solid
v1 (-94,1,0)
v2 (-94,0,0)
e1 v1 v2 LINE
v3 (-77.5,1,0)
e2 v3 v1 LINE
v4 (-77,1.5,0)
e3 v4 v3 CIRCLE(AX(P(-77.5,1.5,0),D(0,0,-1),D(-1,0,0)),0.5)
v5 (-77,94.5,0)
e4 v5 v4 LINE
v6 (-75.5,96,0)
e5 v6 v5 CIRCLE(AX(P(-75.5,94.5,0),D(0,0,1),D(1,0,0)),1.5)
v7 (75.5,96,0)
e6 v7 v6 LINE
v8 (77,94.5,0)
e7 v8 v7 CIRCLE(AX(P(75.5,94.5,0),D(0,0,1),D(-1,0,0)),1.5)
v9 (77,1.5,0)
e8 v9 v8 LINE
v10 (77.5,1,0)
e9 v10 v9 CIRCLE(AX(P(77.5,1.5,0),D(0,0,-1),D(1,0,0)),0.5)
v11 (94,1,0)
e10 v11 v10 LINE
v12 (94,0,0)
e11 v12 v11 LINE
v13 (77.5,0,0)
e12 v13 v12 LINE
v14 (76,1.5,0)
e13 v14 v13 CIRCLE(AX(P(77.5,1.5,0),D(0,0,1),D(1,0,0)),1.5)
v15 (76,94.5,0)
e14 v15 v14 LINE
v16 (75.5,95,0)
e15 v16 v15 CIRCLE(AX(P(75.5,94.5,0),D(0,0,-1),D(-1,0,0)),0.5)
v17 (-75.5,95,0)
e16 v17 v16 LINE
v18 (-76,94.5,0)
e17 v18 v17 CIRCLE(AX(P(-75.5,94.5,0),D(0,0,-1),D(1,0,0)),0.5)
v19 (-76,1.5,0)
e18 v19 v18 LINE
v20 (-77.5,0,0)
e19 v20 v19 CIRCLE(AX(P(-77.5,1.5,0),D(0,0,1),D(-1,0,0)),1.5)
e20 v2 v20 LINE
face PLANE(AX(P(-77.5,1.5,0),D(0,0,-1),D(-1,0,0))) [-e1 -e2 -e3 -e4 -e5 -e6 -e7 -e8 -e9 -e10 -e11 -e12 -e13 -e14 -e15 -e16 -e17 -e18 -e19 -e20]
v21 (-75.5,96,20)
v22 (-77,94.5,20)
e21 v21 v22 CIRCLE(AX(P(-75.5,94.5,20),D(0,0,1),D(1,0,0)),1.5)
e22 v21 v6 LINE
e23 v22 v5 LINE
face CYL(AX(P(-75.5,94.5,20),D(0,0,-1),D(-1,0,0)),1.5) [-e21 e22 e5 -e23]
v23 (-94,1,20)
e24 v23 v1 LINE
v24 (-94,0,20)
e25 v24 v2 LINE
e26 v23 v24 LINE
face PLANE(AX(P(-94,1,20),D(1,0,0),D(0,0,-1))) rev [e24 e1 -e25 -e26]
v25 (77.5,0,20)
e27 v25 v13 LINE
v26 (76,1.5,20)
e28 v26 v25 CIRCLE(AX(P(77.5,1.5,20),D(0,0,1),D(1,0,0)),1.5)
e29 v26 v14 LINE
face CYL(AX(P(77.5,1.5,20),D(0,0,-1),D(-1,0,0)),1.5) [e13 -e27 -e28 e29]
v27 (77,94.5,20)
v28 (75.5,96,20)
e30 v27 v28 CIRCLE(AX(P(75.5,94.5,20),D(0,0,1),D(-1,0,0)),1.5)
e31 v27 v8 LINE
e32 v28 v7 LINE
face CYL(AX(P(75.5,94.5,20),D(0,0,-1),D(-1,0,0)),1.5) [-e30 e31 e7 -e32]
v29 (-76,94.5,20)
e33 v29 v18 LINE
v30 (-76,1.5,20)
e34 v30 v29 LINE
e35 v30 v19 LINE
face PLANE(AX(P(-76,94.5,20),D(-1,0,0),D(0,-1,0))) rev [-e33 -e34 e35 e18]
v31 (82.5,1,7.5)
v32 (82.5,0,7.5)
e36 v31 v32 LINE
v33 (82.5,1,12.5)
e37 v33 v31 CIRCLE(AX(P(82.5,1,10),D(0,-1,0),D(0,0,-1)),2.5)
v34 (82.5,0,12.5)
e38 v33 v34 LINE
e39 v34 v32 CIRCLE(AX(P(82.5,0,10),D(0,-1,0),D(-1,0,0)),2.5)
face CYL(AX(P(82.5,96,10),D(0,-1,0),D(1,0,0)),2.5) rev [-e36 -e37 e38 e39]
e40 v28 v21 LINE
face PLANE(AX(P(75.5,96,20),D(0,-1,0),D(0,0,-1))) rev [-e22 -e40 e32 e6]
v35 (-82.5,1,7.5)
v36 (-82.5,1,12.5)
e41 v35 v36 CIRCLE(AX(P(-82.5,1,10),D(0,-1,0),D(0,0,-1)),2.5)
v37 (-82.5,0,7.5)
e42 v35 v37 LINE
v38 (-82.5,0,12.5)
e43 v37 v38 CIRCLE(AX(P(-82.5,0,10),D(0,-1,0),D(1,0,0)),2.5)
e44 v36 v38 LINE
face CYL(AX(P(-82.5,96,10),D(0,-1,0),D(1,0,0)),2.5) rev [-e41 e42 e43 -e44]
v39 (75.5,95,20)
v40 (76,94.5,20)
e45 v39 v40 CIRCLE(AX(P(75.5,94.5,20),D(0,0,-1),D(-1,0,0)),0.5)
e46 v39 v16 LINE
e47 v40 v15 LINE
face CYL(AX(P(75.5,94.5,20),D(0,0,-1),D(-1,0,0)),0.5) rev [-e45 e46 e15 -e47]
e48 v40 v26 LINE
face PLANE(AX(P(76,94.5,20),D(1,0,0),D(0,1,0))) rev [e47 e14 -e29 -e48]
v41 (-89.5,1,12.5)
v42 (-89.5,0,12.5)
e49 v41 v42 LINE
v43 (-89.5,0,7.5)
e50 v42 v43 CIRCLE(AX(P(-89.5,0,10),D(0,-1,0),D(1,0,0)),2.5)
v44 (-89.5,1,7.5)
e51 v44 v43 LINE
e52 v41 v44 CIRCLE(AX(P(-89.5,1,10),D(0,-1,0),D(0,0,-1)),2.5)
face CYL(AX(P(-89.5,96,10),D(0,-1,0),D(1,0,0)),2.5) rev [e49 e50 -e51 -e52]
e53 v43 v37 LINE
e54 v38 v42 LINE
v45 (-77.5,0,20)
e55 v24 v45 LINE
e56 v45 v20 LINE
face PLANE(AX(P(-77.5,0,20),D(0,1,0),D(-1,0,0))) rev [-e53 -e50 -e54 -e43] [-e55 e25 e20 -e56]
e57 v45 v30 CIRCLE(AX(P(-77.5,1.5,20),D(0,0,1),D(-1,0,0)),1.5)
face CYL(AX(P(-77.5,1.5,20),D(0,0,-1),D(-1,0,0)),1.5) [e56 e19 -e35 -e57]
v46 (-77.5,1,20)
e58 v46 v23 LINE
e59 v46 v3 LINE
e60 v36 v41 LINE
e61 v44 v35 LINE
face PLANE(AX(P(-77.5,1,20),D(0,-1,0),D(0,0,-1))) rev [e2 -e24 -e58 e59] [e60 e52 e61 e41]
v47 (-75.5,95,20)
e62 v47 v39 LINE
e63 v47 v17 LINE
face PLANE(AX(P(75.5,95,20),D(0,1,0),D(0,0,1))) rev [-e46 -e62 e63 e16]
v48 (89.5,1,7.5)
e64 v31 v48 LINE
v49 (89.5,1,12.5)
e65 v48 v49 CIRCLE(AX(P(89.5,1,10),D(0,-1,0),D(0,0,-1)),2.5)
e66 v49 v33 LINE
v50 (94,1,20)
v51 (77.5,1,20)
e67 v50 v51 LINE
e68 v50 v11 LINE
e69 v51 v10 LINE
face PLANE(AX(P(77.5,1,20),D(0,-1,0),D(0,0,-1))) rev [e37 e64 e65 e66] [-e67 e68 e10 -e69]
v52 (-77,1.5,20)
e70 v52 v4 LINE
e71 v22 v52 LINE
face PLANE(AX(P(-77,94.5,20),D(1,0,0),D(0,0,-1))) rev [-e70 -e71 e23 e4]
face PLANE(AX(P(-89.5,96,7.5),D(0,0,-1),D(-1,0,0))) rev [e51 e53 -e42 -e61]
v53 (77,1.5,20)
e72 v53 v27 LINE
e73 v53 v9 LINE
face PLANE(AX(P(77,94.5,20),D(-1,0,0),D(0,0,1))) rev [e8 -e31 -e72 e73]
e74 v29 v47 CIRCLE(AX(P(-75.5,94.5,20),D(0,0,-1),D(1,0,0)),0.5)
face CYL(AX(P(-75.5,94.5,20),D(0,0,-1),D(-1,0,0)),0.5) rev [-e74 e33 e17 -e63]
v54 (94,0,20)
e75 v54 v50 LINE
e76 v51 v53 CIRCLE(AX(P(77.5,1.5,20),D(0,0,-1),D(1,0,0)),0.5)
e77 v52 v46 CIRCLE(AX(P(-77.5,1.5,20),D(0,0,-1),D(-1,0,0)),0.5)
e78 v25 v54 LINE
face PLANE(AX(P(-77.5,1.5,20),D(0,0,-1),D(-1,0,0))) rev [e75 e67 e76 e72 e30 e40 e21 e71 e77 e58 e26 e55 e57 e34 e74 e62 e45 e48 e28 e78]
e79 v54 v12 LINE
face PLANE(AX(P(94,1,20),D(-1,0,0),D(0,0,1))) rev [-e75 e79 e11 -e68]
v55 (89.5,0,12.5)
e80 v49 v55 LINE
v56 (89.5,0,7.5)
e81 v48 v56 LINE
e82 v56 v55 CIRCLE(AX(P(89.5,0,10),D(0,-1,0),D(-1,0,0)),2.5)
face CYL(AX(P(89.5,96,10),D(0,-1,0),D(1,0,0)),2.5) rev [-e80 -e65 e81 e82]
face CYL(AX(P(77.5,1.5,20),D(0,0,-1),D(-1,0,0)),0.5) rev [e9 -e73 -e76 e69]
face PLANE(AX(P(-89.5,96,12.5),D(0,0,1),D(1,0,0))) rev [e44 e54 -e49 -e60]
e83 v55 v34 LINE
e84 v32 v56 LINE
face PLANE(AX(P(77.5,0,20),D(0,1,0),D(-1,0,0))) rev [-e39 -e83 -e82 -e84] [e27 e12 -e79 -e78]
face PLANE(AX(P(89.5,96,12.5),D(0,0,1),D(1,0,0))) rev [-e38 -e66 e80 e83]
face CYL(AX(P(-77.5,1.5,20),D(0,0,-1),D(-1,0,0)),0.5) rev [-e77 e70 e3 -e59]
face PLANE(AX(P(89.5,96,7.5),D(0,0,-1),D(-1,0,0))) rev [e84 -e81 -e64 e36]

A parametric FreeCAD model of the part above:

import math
import FreeCAD as App
import Part
import Sketcher
from FreeCAD import Vector

doc = App.newDocument("Part")
body = doc.addObject("PartDesign::Body", "Body")

# Sketch on XY plane
sketch1 = body.newObject("Sketcher::SketchObject", "Sketch")
sketch1.AttachmentSupport = (doc.getObject("XY_Plane"), [""])
sketch1.MapMode = "FlatFace"
sketch1.addGeometry([
    Part.LineSegment(Vector(-75.5, 95, 0), Vector(75.5, 95, 0)),  # 0
    Part.ArcOfCircle(Part.Circle(Vector(75.5, 94.5, 0), Vector(0, 0, 1), 0.5), math.radians(0), math.radians(90)),  # 1
    Part.LineSegment(Vector(76, 94.5, 0), Vector(76, 1.5, 0)),  # 2
    Part.ArcOfCircle(Part.Circle(Vector(77.5, 1.5, 0), Vector(0, 0, 1), 1.5), math.radians(180), math.radians(270)),  # 3
    Part.LineSegment(Vector(77.5, 0, 0), Vector(94, 0, 0)),  # 4
    Part.LineSegment(Vector(94, 0, 0), Vector(94, 1, 0)),  # 5
    Part.LineSegment(Vector(94, 1, 0), Vector(77.5, 1, 0)),  # 6
    Part.ArcOfCircle(Part.Circle(Vector(77.5, 1.5, 0), Vector(0, 0, 1), 0.5), math.radians(180), math.radians(270)),  # 7
    Part.LineSegment(Vector(77, 1.5, 0), Vector(77, 94.5, 0)),  # 8
    Part.ArcOfCircle(Part.Circle(Vector(75.5, 94.5, 0), Vector(0, 0, 1), 1.5), math.radians(0), math.radians(90)),  # 9
    Part.LineSegment(Vector(75.5, 96, 0), Vector(-75.5, 96, 0)),  # 10
    Part.ArcOfCircle(Part.Circle(Vector(-75.5, 94.5, 0), Vector(0, 0, 1), 1.5), math.radians(90), math.radians(180)),  # 11
    Part.LineSegment(Vector(-77, 94.5, 0), Vector(-77, 1.5, 0)),  # 12
    Part.ArcOfCircle(Part.Circle(Vector(-77.5, 1.5, 0), Vector(0, 0, 1), 0.5), math.radians(-90), math.radians(0)),  # 13
    Part.LineSegment(Vector(-77.5, 1, 0), Vector(-94, 1, 0)),  # 14
    Part.LineSegment(Vector(-94, 1, 0), Vector(-94, 0, 0)),  # 15
    Part.LineSegment(Vector(-94, 0, 0), Vector(-77.5, 0, 0)),  # 16
    Part.ArcOfCircle(Part.Circle(Vector(-77.5, 1.5, 0), Vector(0, 0, 1), 1.5), math.radians(-90), math.radians(0)),  # 17
    Part.LineSegment(Vector(-76, 1.5, 0), Vector(-76, 94.5, 0)),  # 18
    Part.ArcOfCircle(Part.Circle(Vector(-75.5, 94.5, 0), Vector(0, 0, 1), 0.5), math.radians(90), math.radians(180)),  # 19
], False)
sketch1.addConstraint([
    Sketcher.Constraint("Tangent", 0, 2, 1, 2),
    Sketcher.Constraint("Tangent", 1, 1, 2, 1),
    Sketcher.Constraint("Tangent", 2, 2, 3, 1),
    Sketcher.Constraint("Tangent", 3, 2, 4, 1),
    Sketcher.Constraint("Coincident", 4, 2, 5, 1),
    Sketcher.Constraint("Coincident", 5, 2, 6, 1),
    Sketcher.Constraint("Tangent", 6, 2, 7, 2),
    Sketcher.Constraint("Tangent", 7, 1, 8, 1),
    Sketcher.Constraint("Tangent", 8, 2, 9, 1),
    Sketcher.Constraint("Tangent", 9, 2, 10, 1),
    Sketcher.Constraint("Tangent", 10, 2, 11, 1),
    Sketcher.Constraint("Tangent", 11, 2, 12, 1),
    Sketcher.Constraint("Tangent", 12, 2, 13, 2),
    Sketcher.Constraint("Tangent", 13, 1, 14, 1),
    Sketcher.Constraint("Coincident", 14, 2, 15, 1),
    Sketcher.Constraint("Coincident", 15, 2, 16, 1),
    Sketcher.Constraint("Tangent", 16, 2, 17, 1),
    Sketcher.Constraint("Tangent", 17, 2, 18, 1),
    Sketcher.Constraint("Tangent", 18, 2, 19, 2),
    Sketcher.Constraint("Tangent", 19, 1, 0, 1),
    Sketcher.Constraint("Horizontal", 0),
    Sketcher.Constraint("Vertical", 2),
    Sketcher.Constraint("Horizontal", 4),
    Sketcher.Constraint("Vertical", 5),
    Sketcher.Constraint("Horizontal", 6),
    Sketcher.Constraint("Vertical", 8),
    Sketcher.Constraint("Horizontal", 10),
    Sketcher.Constraint("Vertical", 12),
    Sketcher.Constraint("Horizontal", 14),
    Sketcher.Constraint("Vertical", 15),
    Sketcher.Constraint("Horizontal", 16),
    Sketcher.Constraint("Vertical", 18),
    Sketcher.Constraint("Coincident", 7, 3, 3, 3),
    Sketcher.Constraint("Coincident", 9, 3, 1, 3),
    Sketcher.Constraint("Coincident", 17, 3, 13, 3),
    Sketcher.Constraint("Coincident", 19, 3, 11, 3),
    Sketcher.Constraint("Equal", 1, 7),
    Sketcher.Constraint("Equal", 9, 11),
    Sketcher.Constraint("Equal", 7, 13),
    Sketcher.Constraint("Symmetric", 4, 2, 15, 2, -1, 1),
    Sketcher.Constraint("Symmetric", 3, 3, 13, 3, -2),
    Sketcher.Constraint("Radius", 1, 0.5),
    Sketcher.Constraint("Radius", 3, 1.5),
    Sketcher.Constraint("DistanceX", 0, 1, 0, 2, 151.0),
    Sketcher.Constraint("DistanceY", 2, 2, 2, 1, 93.0),
    Sketcher.Constraint("DistanceX", 4, 1, 4, 2, 16.5),
])
pad1 = body.newObject("PartDesign::Pad", "Pad")
pad1.Profile = sketch1
pad1.Length = 20

# Sketch on XZ plane
sketch2 = body.newObject("Sketcher::SketchObject", "Sketch001")
sketch2.AttachmentSupport = (doc.getObject("XZ_Plane"), [""])
sketch2.MapMode = "FlatFace"
sketch2.addGeometry([
    Part.LineSegment(Vector(-82.5, 12.5, 0), Vector(-89.5, 12.5, 0)),  # 0
    Part.ArcOfCircle(Part.Circle(Vector(-89.5, 10, 0), Vector(0, 0, 1), 2.5), math.radians(90), math.radians(270)),  # 1
    Part.LineSegment(Vector(-89.5, 7.5, 0), Vector(-82.5, 7.5, 0)),  # 2
    Part.ArcOfCircle(Part.Circle(Vector(-82.5, 10, 0), Vector(0, 0, 1), 2.5), math.radians(-90), math.radians(90)),  # 3
    Part.LineSegment(Vector(82.5, 7.5, 0), Vector(89.5, 7.5, 0)),  # 4
    Part.ArcOfCircle(Part.Circle(Vector(89.5, 10, 0), Vector(0, 0, 1), 2.5), math.radians(-90), math.radians(90)),  # 5
    Part.LineSegment(Vector(89.5, 12.5, 0), Vector(82.5, 12.5, 0)),  # 6
    Part.ArcOfCircle(Part.Circle(Vector(82.5, 10, 0), Vector(0, 0, 1), 2.5), math.radians(90), math.radians(270)),  # 7
], False)
sketch2.addConstraint([
    Sketcher.Constraint("Tangent", 0, 2, 1, 1),
    Sketcher.Constraint("Tangent", 1, 2, 2, 1),
    Sketcher.Constraint("Tangent", 2, 2, 3, 1),
    Sketcher.Constraint("Tangent", 3, 2, 0, 1),
    Sketcher.Constraint("Tangent", 4, 2, 5, 1),
    Sketcher.Constraint("Tangent", 5, 2, 6, 1),
    Sketcher.Constraint("Tangent", 6, 2, 7, 1),
    Sketcher.Constraint("Tangent", 7, 2, 4, 1),
    Sketcher.Constraint("Horizontal", 0),
    Sketcher.Constraint("Horizontal", 2),
    Sketcher.Constraint("Horizontal", 4),
    Sketcher.Constraint("Horizontal", 6),
    Sketcher.Constraint("Equal", 3, 5),
    Sketcher.Constraint("Symmetric", 1, 3, 5, 3, -2),
    Sketcher.Constraint("Equal", 2, 4),
    Sketcher.Constraint("Radius", 1, 2.5),
    Sketcher.Constraint("DistanceX", 0, 2, 0, 1, 7.0),
    Sketcher.Constraint("DistanceY", -1, 1, 1, 3, 10.0),
    Sketcher.Constraint("DistanceX", 3, 3, 5, 3, 172.0),
])
pocket1 = body.newObject("PartDesign::Pocket", "Pocket")
pocket1.Profile = sketch2
pocket1.Type = "ThroughAll"

doc.recompute()
